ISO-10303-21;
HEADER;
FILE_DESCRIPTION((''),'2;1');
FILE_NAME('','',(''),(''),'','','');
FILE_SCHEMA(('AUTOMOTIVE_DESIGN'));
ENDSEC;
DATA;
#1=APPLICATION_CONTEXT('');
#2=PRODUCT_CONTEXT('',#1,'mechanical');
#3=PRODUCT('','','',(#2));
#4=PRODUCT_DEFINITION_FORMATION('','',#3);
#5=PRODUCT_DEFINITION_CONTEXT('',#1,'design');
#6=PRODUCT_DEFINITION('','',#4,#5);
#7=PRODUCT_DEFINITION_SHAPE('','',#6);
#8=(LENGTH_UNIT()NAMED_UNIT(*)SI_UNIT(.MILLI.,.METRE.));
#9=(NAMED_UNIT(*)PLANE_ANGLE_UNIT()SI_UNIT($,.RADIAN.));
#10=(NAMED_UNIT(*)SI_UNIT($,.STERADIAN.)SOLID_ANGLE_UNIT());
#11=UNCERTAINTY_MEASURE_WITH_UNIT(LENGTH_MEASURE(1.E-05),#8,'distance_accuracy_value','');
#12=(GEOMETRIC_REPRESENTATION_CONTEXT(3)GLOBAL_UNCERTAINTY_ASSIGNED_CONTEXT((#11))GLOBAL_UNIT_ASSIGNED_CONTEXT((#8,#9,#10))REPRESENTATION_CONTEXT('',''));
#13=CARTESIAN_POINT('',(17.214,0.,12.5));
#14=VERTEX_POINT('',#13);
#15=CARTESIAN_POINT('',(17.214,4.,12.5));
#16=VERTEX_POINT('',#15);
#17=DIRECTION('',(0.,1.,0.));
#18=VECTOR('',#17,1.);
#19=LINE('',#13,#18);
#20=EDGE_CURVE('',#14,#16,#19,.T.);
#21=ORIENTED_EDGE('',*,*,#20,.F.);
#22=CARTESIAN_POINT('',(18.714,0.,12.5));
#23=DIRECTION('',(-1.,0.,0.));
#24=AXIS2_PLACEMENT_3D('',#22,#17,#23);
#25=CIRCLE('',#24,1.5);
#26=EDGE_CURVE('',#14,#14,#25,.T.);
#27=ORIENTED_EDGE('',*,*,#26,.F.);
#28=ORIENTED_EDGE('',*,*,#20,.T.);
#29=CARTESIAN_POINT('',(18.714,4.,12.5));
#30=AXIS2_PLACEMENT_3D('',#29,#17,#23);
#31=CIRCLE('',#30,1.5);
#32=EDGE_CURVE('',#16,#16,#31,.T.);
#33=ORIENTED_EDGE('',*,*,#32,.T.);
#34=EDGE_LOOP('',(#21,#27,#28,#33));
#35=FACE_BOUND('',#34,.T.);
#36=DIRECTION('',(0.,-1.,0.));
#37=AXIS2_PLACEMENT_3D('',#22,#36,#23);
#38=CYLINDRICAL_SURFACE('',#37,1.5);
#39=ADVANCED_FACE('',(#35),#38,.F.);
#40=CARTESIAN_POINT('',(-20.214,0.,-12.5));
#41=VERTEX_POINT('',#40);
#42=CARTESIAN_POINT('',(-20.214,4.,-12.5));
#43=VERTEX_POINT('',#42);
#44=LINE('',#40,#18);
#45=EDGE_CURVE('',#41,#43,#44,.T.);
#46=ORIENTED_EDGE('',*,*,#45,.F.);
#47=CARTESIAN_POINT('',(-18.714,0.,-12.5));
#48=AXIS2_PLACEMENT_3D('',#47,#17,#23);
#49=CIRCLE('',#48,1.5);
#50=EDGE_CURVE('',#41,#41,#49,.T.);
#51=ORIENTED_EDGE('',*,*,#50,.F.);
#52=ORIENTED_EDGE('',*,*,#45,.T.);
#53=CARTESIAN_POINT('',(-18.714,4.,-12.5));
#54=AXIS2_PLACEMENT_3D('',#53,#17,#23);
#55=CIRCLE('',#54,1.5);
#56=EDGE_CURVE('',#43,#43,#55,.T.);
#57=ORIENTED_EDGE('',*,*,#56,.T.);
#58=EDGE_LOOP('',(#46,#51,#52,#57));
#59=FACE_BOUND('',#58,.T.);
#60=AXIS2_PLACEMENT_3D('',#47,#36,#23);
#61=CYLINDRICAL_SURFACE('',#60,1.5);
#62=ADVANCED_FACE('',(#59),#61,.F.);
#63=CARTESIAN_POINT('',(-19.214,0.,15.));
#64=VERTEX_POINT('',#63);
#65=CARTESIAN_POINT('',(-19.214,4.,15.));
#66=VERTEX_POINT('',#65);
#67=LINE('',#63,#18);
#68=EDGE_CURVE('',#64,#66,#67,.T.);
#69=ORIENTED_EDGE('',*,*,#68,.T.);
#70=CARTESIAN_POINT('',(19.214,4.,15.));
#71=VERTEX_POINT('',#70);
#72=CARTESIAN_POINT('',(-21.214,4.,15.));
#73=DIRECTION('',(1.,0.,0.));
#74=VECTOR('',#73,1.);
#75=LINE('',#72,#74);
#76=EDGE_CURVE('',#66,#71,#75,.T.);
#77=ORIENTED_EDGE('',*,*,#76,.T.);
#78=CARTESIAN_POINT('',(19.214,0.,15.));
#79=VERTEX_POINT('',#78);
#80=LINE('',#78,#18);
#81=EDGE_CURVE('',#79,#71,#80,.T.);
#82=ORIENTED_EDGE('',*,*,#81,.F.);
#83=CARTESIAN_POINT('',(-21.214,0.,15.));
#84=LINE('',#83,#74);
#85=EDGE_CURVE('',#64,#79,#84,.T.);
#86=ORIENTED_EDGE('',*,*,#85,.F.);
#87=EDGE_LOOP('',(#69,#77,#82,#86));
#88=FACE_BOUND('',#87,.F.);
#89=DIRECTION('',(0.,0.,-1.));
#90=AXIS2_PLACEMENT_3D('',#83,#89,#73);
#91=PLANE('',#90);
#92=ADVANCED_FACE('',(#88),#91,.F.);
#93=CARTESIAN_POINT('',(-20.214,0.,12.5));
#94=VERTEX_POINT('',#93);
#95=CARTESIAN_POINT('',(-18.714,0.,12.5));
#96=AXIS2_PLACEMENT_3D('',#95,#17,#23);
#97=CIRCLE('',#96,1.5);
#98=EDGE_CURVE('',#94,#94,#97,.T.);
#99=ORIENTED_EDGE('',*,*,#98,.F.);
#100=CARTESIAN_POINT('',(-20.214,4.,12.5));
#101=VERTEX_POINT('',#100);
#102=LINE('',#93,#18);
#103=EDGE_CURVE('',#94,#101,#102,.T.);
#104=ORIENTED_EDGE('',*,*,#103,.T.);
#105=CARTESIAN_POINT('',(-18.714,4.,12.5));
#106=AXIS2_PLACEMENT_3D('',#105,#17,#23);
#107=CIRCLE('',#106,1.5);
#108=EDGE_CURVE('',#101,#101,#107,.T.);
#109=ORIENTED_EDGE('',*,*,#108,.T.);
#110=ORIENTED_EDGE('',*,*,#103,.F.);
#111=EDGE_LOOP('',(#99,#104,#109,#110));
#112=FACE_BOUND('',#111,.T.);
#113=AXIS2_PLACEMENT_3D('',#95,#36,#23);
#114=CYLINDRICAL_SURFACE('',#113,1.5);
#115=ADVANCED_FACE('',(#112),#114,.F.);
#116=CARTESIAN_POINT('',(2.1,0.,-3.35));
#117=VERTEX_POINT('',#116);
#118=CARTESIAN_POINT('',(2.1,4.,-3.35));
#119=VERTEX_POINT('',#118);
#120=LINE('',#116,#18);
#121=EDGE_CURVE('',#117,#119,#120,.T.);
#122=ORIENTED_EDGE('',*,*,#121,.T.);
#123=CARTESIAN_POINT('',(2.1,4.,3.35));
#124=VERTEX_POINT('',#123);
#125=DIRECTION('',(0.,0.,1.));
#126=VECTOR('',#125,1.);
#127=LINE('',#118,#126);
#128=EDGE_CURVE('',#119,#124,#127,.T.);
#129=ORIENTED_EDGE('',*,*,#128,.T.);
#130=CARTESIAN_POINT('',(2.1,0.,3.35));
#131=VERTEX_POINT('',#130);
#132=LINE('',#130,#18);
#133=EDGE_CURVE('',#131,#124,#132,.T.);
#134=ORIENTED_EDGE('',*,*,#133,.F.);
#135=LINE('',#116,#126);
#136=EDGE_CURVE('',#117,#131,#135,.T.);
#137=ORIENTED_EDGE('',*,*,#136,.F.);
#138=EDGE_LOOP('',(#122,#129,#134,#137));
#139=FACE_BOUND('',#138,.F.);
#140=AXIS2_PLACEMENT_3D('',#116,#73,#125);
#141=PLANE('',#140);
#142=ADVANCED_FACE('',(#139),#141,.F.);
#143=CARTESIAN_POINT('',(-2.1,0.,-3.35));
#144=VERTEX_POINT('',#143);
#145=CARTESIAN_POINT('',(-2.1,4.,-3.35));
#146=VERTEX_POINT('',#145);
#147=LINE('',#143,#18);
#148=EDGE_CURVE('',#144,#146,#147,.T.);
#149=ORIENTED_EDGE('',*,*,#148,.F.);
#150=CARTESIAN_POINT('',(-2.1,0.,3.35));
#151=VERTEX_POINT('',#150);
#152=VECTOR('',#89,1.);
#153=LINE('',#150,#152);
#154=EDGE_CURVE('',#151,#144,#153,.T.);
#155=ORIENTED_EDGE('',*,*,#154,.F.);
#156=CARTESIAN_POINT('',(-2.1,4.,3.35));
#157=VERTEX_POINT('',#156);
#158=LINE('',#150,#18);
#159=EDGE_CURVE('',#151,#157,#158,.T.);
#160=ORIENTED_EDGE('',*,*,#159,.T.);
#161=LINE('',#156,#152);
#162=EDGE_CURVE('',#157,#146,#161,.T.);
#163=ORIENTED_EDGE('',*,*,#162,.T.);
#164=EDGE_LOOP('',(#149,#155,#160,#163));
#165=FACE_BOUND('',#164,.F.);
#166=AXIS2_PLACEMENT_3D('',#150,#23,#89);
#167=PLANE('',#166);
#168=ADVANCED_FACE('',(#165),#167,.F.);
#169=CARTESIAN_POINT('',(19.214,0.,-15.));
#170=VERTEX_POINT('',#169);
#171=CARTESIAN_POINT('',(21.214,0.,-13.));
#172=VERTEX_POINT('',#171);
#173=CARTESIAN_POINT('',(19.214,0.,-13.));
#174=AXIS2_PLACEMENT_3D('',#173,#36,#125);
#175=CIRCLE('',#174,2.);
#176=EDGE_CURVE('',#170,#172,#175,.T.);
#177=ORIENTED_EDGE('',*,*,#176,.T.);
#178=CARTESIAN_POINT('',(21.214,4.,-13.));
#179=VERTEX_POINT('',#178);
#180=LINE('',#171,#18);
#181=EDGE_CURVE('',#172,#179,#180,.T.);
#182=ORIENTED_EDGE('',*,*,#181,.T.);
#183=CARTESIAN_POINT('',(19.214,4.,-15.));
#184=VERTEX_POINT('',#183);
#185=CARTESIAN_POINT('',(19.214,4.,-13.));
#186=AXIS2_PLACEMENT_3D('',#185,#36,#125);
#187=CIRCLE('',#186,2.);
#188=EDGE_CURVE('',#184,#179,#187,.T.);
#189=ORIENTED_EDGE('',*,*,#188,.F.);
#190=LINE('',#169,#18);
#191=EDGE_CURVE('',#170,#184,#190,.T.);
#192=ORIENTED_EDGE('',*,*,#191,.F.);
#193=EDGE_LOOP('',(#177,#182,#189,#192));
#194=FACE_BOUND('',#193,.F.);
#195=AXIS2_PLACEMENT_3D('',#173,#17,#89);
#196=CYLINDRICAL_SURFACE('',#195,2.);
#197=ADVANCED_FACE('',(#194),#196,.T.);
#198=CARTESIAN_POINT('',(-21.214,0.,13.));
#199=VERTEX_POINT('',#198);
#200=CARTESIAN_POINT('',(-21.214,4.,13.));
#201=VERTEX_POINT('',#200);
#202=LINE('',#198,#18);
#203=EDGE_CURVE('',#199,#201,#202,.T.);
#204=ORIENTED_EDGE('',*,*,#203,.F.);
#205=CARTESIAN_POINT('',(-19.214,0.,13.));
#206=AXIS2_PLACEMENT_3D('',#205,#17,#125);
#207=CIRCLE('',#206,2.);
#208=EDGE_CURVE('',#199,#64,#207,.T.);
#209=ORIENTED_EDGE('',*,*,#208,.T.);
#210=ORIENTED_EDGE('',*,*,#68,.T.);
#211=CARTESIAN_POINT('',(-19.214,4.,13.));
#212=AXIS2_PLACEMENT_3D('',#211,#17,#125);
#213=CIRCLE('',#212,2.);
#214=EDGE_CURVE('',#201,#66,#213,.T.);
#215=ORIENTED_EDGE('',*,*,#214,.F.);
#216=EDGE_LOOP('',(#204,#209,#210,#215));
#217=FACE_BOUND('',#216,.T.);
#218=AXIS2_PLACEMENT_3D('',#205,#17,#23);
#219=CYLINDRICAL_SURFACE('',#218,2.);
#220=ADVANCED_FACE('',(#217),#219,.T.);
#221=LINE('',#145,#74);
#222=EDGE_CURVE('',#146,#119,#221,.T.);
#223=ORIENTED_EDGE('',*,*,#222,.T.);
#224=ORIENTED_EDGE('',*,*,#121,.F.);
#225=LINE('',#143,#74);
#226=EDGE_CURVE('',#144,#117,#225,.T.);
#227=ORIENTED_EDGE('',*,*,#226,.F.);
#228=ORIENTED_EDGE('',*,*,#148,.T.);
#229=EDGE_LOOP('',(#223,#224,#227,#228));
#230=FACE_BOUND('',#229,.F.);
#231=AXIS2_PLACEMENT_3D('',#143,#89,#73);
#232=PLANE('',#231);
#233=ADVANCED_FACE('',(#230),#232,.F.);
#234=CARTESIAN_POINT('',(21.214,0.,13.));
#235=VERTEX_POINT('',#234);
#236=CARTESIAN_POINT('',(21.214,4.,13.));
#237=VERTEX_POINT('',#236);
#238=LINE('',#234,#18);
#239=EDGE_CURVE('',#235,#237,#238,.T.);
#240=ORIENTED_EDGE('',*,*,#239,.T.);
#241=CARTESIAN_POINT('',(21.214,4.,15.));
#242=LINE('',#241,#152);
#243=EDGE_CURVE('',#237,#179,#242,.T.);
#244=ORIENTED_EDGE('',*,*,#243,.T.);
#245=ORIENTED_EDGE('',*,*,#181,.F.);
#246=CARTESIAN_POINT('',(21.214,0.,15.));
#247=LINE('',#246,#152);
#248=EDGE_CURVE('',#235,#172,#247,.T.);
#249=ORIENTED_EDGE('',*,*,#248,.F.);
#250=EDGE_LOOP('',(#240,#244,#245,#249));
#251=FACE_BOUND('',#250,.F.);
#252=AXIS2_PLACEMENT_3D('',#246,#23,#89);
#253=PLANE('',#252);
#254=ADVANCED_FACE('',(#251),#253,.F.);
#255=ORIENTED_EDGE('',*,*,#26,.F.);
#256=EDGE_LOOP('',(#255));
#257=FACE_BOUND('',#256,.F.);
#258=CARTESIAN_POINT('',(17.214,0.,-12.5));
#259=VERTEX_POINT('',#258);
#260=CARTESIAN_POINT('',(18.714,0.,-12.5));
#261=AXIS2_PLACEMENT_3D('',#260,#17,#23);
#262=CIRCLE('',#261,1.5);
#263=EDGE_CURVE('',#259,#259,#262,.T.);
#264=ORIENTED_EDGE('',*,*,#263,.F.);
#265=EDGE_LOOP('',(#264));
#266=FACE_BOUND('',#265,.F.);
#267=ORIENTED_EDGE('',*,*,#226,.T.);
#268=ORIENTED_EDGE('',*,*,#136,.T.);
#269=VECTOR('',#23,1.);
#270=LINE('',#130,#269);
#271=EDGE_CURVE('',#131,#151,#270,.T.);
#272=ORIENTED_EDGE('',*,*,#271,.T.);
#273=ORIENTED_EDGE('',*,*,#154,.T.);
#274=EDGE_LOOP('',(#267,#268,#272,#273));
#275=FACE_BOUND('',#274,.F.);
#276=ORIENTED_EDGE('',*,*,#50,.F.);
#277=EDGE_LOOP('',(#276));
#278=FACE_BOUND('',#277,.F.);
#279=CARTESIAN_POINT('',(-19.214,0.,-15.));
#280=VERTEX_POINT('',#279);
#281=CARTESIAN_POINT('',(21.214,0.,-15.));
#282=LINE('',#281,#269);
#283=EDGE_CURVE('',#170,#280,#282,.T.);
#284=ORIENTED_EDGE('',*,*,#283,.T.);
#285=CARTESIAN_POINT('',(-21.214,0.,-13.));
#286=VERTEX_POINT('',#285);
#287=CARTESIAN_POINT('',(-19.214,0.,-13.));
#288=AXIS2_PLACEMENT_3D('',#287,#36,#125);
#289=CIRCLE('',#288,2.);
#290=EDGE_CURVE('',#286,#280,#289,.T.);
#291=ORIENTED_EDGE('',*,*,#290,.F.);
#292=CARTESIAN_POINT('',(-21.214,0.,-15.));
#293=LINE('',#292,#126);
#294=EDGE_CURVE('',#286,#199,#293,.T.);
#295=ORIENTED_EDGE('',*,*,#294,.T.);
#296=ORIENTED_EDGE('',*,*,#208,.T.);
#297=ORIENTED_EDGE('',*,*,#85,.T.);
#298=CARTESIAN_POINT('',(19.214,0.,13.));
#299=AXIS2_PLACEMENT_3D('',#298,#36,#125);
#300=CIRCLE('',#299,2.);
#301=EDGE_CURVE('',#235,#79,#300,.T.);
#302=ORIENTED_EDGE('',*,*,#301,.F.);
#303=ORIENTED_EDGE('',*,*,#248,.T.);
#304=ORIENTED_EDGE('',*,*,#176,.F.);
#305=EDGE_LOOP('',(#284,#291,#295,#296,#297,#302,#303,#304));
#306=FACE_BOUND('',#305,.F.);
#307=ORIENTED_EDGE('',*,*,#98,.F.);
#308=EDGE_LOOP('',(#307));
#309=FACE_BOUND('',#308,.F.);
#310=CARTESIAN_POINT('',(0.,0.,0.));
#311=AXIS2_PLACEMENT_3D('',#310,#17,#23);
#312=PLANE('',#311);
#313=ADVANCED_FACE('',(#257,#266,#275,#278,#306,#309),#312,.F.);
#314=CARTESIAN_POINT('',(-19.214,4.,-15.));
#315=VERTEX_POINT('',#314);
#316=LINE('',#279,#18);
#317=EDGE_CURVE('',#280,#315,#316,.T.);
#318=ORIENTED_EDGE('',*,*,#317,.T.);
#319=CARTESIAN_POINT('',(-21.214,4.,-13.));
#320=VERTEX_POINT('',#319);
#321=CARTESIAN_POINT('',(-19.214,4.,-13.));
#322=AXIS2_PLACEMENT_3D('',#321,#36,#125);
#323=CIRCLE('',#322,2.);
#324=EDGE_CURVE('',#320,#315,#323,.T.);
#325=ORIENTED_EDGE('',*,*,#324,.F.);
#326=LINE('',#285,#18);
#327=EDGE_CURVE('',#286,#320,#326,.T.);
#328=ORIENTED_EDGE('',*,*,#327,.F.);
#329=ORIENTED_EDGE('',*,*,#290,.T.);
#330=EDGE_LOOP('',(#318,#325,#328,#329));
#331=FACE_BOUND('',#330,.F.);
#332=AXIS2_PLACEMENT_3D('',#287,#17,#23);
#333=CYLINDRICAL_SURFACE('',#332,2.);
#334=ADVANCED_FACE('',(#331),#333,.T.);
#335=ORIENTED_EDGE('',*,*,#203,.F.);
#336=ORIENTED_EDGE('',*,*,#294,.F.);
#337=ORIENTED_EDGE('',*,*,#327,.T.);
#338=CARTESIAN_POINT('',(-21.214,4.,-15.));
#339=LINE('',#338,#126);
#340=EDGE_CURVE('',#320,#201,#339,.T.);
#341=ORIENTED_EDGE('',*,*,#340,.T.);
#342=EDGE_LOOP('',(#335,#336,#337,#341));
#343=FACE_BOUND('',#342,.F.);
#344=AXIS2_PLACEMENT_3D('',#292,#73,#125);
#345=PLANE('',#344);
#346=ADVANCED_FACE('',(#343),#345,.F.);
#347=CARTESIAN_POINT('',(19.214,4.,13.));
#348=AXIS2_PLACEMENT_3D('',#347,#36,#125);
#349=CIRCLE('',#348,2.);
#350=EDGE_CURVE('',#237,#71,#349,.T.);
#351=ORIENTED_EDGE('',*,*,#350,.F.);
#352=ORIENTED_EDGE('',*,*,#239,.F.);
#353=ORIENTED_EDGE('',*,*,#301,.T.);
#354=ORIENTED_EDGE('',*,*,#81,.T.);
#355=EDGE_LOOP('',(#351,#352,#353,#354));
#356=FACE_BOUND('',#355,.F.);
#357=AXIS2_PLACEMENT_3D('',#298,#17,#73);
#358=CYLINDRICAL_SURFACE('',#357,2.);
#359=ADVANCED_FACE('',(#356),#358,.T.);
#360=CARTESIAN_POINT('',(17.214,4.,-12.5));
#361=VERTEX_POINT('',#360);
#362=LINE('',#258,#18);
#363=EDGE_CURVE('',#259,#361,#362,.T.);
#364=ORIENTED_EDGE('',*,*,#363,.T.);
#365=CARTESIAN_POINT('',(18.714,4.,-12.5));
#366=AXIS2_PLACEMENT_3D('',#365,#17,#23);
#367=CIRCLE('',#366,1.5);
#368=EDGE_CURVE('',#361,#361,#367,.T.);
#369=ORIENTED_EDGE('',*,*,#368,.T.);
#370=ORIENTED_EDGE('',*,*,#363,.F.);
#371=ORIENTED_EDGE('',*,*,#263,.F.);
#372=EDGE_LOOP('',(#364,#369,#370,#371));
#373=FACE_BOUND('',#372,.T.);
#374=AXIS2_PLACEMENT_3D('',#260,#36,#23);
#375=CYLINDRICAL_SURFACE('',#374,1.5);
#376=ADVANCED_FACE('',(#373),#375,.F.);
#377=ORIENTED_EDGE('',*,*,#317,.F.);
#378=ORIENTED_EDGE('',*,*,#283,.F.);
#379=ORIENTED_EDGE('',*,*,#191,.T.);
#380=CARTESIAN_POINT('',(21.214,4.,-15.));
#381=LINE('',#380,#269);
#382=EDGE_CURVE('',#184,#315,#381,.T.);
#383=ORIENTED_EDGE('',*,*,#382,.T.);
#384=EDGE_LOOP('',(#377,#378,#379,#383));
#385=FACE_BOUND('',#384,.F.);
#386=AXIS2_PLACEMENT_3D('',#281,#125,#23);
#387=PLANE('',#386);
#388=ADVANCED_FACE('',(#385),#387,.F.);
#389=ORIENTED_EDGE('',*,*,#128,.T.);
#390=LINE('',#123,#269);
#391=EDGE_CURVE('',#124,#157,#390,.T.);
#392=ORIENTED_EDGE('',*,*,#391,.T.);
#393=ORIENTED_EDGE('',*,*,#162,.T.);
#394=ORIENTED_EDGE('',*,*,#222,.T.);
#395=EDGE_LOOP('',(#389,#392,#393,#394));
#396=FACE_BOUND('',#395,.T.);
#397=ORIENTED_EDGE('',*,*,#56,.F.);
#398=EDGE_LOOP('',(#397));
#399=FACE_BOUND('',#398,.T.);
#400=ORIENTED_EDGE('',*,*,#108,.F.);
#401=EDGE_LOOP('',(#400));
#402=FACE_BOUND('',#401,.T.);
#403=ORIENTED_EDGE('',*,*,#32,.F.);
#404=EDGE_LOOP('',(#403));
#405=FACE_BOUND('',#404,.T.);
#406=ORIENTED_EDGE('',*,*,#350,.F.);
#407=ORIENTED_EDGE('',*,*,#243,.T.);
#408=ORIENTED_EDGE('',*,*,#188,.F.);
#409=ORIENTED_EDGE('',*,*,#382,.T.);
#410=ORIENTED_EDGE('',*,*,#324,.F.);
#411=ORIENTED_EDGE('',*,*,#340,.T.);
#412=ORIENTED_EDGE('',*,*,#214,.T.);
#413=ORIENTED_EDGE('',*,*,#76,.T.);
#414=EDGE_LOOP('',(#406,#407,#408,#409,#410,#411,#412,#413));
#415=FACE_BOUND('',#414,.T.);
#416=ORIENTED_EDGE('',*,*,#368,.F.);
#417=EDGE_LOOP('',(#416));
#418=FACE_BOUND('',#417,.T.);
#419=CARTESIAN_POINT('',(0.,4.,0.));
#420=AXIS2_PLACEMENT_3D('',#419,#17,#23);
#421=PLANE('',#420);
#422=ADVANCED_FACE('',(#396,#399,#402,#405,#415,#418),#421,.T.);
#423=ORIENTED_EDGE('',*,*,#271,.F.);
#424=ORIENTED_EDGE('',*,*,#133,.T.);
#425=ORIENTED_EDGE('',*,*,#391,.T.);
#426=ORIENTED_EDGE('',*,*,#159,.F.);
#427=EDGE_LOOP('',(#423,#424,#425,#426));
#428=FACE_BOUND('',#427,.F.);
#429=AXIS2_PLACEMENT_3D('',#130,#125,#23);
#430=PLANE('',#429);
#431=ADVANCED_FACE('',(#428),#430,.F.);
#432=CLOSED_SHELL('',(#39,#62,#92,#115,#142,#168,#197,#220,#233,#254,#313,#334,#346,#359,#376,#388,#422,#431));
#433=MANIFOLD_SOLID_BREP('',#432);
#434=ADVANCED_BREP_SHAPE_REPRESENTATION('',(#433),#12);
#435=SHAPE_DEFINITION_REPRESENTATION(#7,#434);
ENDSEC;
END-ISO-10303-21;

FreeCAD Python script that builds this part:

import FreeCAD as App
import Part
import Sketcher


def edges_at(feature, points):
    """Names of the edges that pass closest to the given points."""
    edges = feature.Shape.Edges
    near = lambda p: min(range(len(edges)), key=lambda i: edges[i].distToShape(Part.Vertex(*p))[0])
    return sorted({f"Edge{near(p) + 1}" for p in points})

doc = App.newDocument("Part")
body = doc.addObject("PartDesign::Body", "Body")

# Sketch on XZ plane
sketch1 = doc.addObject("Sketcher::SketchObject", "Sketch")
body.addObject(sketch1)
sketch1.AttachmentSupport = (doc.XZ_Plane, [""])
sketch1.MapMode = "FlatFace"
sketch1.addGeometry(Part.LineSegment(App.Vector(-21.214, -15, 0), App.Vector(-21.214, 15, 0)), False)
sketch1.addGeometry(Part.LineSegment(App.Vector(-21.214, 15, 0), App.Vector(21.214, 15, 0)), False)
sketch1.addGeometry(Part.LineSegment(App.Vector(21.214, 15, 0), App.Vector(21.214, -15, 0)), False)
sketch1.addGeometry(Part.LineSegment(App.Vector(21.214, -15, 0), App.Vector(-21.214, -15, 0)), False)
sketch1.addGeometry(Part.Circle(App.Vector(18.714, -12.5, 0), App.Vector(0, 0, 1), 1.5), False)
sketch1.addGeometry(Part.Circle(App.Vector(-18.714, -12.5, 0), App.Vector(0, 0, 1), 1.5), False)
sketch1.addGeometry(Part.Circle(App.Vector(18.714, 12.5, 0), App.Vector(0, 0, 1), 1.5), False)
sketch1.addGeometry(Part.LineSegment(App.Vector(2.1, -3.35, 0), App.Vector(2.1, 3.35, 0)), False)
sketch1.addGeometry(Part.LineSegment(App.Vector(2.1, 3.35, 0), App.Vector(-2.1, 3.35, 0)), False)
sketch1.addGeometry(Part.LineSegment(App.Vector(-2.1, 3.35, 0), App.Vector(-2.1, -3.35, 0)), False)
sketch1.addGeometry(Part.LineSegment(App.Vector(-2.1, -3.35, 0), App.Vector(2.1, -3.35, 0)), False)
sketch1.addGeometry(Part.Circle(App.Vector(-18.714, 12.5, 0), App.Vector(0, 0, 1), 1.5), False)
sketch1.addConstraint(Sketcher.Constraint("Coincident", 0, 2, 1, 1))
sketch1.addConstraint(Sketcher.Constraint("Coincident", 1, 2, 2, 1))
sketch1.addConstraint(Sketcher.Constraint("Coincident", 2, 2, 3, 1))
sketch1.addConstraint(Sketcher.Constraint("Coincident", 3, 2, 0, 1))
sketch1.addConstraint(Sketcher.Constraint("Coincident", 7, 2, 8, 1))
sketch1.addConstraint(Sketcher.Constraint("Coincident", 8, 2, 9, 1))
sketch1.addConstraint(Sketcher.Constraint("Coincident", 9, 2, 10, 1))
sketch1.addConstraint(Sketcher.Constraint("Coincident", 10, 2, 7, 1))
sketch1.addConstraint(Sketcher.Constraint("Vertical", 0))
sketch1.addConstraint(Sketcher.Constraint("Horizontal", 1))
sketch1.addConstraint(Sketcher.Constraint("Vertical", 2))
sketch1.addConstraint(Sketcher.Constraint("Horizontal", 3))
sketch1.addConstraint(Sketcher.Constraint("Vertical", 7))
sketch1.addConstraint(Sketcher.Constraint("Horizontal", 8))
sketch1.addConstraint(Sketcher.Constraint("Vertical", 9))
sketch1.addConstraint(Sketcher.Constraint("Horizontal", 10))
sketch1.addConstraint(Sketcher.Constraint("Equal", 4, 5))
sketch1.addConstraint(Sketcher.Constraint("Equal", 5, 6))
sketch1.addConstraint(Sketcher.Constraint("Equal", 6, 11))
sketch1.addConstraint(Sketcher.Constraint("Symmetric", 5, 3, 6, 3, -1, 1))
sketch1.addConstraint(Sketcher.Constraint("Symmetric", 4, 3, 11, 3, -1, 1))
sketch1.addConstraint(Sketcher.Constraint("Symmetric", 0, 2, 2, 2, -1, 1))
sketch1.addConstraint(Sketcher.Constraint("Symmetric", 7, 2, 9, 2, -1, 1))
sketch1.addConstraint(Sketcher.Constraint("Symmetric", 4, 3, 5, 3, -2))
sketch1.addConstraint(Sketcher.Constraint("Diameter", 4, 3.0))
sketch1.addConstraint(Sketcher.Constraint("DistanceY", 0, 1, 0, 2, 30.0))
sketch1.addConstraint(Sketcher.Constraint("DistanceX", 8, 2, 8, 1, 4.2))
sketch1.addConstraint(Sketcher.Constraint("DistanceY", 7, 1, 7, 2, 6.7))
sketch1.addConstraint(Sketcher.Constraint("DistanceY", 4, 3, 6, 3, 25.0))
sketch1.addConstraint(Sketcher.Constraint("DistanceX", 1, 1, 1, 2, 42.428))
sketch1.addConstraint(Sketcher.Constraint("DistanceX", 5, 3, 4, 3, 37.428))
pad1 = doc.addObject("PartDesign::Pad", "Pad")
body.addObject(pad1)
pad1.Profile = sketch1
pad1.Length = 4
pad1.Reversed = True
doc.recompute()

fillet = doc.addObject("PartDesign::Fillet", "Fillet")
body.addObject(fillet)
fillet.Base = (pad1, edges_at(pad1, [
    (-21.214, 2, 15),
    (21.214, 2, 15),
    (21.214, 2, -15),
    (-21.214, 2, -15),
]))
fillet.Radius = 2

doc.recompute()
